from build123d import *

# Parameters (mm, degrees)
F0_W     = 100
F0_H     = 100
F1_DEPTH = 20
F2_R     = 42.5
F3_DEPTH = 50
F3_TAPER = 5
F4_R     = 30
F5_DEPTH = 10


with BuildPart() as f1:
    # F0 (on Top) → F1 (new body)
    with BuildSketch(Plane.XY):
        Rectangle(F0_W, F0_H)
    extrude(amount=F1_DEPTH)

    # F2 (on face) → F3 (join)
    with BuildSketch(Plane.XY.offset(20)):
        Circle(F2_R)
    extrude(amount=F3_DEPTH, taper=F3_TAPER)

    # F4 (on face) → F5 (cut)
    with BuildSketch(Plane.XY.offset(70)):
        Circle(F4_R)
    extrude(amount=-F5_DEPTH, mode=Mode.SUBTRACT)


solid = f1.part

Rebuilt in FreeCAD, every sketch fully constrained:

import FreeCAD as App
import Part
import Sketcher

V = App.Vector


def add_polygon(sketch, points):
    """Adds a closed chain of lines whose ends are joined by coincident constraints."""
    first, n = sketch.GeometryCount, len(points)
    for a, b in zip(points, points[1:] + points[:1]):
        sketch.addGeometry(Part.LineSegment(App.Vector(*a, 0), App.Vector(*b, 0)), False)
    for i in range(n):
        sketch.addConstraint(Sketcher.Constraint("Coincident", first + i, 2, first + (i + 1) % n, 1))

doc = App.newDocument("Part")
params = doc.addObject("Spreadsheet::Sheet", "Params")
for row, (alias, value) in enumerate([
    ("sketch1_width", "100 mm"),
    ("pad1_length", "20 mm"),
    ("sketch2_diameter", "85 mm"),
    ("pad2_length", "50 mm"),
    ("pad2_taper", "-5 deg"),
    ("sketch3_diameter", "60 mm"),
    ("pocket1_length", "10 mm"),
], start=1):
    params.set(f"A{row}", alias)
    params.set(f"B{row}", "=" + value)
    params.setAlias(f"B{row}", alias)

body = doc.addObject("PartDesign::Body", "Body")

# Sketch on XY plane
sketch1 = body.newObject("Sketcher::SketchObject", "Sketch")
sketch1.AttachmentSupport = (doc.getObject("XY_Plane"), [""])
sketch1.MapMode = "FlatFace"
add_polygon(sketch1, [(-50, 50), (-50, -50), (50, -50), (50, 50)])  # lines 0-3
sketch1.addConstraint(Sketcher.Constraint("Vertical", 0))
sketch1.addConstraint(Sketcher.Constraint("Horizontal", 1))
sketch1.addConstraint(Sketcher.Constraint("Vertical", 2))
sketch1.addConstraint(Sketcher.Constraint("Horizontal", 3))
sketch1.addConstraint(Sketcher.Constraint("Symmetric", 0, 2, 2, 2, -1, 1))
sketch1.addConstraint(Sketcher.Constraint("Equal", 3, 0))
sketch1.addConstraint(Sketcher.Constraint("DistanceX", 1, 1, 1, 2, 100.0))
sketch1.setExpression("Constraints[10]", "Params.sketch1_width")
pad1 = body.newObject("PartDesign::Pad", "Pad")
pad1.Profile = sketch1
pad1.setExpression("Length", "Params.pad1_length")

# Sketch on XY plane
sketch2 = body.newObject("Sketcher::SketchObject", "Sketch001")
sketch2.AttachmentSupport = (doc.getObject("XY_Plane"), [""])
sketch2.MapMode = "FlatFace"
sketch2.AttachmentOffset = App.Placement(V(0, 0, 20), App.Rotation())
sketch2.addGeometry(Part.Circle(V(0, 0, 0), V(0, 0, 1), 42.5), False)
sketch2.addConstraint(Sketcher.Constraint("Coincident", 0, 3, -1, 1))
sketch2.addConstraint(Sketcher.Constraint("Diameter", 0, 85.0))
sketch2.setExpression("Constraints[1]", "Params.sketch2_diameter")
pad2 = body.newObject("PartDesign::Pad", "Pad001")
pad2.Profile = sketch2
pad2.setExpression("Length", "Params.pad2_length")
pad2.setExpression("TaperAngle", "Params.pad2_taper")

# Sketch on XY plane
sketch3 = body.newObject("Sketcher::SketchObject", "Sketch002")
sketch3.AttachmentSupport = (doc.getObject("XY_Plane"), [""])
sketch3.MapMode = "FlatFace"
sketch3.AttachmentOffset = App.Placement(V(0, 0, 70), App.Rotation())
sketch3.addGeometry(Part.Circle(V(0, 0, 0), V(0, 0, 1), 30), False)
sketch3.addConstraint(Sketcher.Constraint("Coincident", 0, 3, -1, 1))
sketch3.addConstraint(Sketcher.Constraint("Diameter", 0, 60.0))
sketch3.setExpression("Constraints[1]", "Params.sketch3_diameter")
pocket1 = body.newObject("PartDesign::Pocket", "Pocket")
pocket1.Profile = sketch3
pocket1.setExpression("Length", "Params.pocket1_length")

doc.recompute()
